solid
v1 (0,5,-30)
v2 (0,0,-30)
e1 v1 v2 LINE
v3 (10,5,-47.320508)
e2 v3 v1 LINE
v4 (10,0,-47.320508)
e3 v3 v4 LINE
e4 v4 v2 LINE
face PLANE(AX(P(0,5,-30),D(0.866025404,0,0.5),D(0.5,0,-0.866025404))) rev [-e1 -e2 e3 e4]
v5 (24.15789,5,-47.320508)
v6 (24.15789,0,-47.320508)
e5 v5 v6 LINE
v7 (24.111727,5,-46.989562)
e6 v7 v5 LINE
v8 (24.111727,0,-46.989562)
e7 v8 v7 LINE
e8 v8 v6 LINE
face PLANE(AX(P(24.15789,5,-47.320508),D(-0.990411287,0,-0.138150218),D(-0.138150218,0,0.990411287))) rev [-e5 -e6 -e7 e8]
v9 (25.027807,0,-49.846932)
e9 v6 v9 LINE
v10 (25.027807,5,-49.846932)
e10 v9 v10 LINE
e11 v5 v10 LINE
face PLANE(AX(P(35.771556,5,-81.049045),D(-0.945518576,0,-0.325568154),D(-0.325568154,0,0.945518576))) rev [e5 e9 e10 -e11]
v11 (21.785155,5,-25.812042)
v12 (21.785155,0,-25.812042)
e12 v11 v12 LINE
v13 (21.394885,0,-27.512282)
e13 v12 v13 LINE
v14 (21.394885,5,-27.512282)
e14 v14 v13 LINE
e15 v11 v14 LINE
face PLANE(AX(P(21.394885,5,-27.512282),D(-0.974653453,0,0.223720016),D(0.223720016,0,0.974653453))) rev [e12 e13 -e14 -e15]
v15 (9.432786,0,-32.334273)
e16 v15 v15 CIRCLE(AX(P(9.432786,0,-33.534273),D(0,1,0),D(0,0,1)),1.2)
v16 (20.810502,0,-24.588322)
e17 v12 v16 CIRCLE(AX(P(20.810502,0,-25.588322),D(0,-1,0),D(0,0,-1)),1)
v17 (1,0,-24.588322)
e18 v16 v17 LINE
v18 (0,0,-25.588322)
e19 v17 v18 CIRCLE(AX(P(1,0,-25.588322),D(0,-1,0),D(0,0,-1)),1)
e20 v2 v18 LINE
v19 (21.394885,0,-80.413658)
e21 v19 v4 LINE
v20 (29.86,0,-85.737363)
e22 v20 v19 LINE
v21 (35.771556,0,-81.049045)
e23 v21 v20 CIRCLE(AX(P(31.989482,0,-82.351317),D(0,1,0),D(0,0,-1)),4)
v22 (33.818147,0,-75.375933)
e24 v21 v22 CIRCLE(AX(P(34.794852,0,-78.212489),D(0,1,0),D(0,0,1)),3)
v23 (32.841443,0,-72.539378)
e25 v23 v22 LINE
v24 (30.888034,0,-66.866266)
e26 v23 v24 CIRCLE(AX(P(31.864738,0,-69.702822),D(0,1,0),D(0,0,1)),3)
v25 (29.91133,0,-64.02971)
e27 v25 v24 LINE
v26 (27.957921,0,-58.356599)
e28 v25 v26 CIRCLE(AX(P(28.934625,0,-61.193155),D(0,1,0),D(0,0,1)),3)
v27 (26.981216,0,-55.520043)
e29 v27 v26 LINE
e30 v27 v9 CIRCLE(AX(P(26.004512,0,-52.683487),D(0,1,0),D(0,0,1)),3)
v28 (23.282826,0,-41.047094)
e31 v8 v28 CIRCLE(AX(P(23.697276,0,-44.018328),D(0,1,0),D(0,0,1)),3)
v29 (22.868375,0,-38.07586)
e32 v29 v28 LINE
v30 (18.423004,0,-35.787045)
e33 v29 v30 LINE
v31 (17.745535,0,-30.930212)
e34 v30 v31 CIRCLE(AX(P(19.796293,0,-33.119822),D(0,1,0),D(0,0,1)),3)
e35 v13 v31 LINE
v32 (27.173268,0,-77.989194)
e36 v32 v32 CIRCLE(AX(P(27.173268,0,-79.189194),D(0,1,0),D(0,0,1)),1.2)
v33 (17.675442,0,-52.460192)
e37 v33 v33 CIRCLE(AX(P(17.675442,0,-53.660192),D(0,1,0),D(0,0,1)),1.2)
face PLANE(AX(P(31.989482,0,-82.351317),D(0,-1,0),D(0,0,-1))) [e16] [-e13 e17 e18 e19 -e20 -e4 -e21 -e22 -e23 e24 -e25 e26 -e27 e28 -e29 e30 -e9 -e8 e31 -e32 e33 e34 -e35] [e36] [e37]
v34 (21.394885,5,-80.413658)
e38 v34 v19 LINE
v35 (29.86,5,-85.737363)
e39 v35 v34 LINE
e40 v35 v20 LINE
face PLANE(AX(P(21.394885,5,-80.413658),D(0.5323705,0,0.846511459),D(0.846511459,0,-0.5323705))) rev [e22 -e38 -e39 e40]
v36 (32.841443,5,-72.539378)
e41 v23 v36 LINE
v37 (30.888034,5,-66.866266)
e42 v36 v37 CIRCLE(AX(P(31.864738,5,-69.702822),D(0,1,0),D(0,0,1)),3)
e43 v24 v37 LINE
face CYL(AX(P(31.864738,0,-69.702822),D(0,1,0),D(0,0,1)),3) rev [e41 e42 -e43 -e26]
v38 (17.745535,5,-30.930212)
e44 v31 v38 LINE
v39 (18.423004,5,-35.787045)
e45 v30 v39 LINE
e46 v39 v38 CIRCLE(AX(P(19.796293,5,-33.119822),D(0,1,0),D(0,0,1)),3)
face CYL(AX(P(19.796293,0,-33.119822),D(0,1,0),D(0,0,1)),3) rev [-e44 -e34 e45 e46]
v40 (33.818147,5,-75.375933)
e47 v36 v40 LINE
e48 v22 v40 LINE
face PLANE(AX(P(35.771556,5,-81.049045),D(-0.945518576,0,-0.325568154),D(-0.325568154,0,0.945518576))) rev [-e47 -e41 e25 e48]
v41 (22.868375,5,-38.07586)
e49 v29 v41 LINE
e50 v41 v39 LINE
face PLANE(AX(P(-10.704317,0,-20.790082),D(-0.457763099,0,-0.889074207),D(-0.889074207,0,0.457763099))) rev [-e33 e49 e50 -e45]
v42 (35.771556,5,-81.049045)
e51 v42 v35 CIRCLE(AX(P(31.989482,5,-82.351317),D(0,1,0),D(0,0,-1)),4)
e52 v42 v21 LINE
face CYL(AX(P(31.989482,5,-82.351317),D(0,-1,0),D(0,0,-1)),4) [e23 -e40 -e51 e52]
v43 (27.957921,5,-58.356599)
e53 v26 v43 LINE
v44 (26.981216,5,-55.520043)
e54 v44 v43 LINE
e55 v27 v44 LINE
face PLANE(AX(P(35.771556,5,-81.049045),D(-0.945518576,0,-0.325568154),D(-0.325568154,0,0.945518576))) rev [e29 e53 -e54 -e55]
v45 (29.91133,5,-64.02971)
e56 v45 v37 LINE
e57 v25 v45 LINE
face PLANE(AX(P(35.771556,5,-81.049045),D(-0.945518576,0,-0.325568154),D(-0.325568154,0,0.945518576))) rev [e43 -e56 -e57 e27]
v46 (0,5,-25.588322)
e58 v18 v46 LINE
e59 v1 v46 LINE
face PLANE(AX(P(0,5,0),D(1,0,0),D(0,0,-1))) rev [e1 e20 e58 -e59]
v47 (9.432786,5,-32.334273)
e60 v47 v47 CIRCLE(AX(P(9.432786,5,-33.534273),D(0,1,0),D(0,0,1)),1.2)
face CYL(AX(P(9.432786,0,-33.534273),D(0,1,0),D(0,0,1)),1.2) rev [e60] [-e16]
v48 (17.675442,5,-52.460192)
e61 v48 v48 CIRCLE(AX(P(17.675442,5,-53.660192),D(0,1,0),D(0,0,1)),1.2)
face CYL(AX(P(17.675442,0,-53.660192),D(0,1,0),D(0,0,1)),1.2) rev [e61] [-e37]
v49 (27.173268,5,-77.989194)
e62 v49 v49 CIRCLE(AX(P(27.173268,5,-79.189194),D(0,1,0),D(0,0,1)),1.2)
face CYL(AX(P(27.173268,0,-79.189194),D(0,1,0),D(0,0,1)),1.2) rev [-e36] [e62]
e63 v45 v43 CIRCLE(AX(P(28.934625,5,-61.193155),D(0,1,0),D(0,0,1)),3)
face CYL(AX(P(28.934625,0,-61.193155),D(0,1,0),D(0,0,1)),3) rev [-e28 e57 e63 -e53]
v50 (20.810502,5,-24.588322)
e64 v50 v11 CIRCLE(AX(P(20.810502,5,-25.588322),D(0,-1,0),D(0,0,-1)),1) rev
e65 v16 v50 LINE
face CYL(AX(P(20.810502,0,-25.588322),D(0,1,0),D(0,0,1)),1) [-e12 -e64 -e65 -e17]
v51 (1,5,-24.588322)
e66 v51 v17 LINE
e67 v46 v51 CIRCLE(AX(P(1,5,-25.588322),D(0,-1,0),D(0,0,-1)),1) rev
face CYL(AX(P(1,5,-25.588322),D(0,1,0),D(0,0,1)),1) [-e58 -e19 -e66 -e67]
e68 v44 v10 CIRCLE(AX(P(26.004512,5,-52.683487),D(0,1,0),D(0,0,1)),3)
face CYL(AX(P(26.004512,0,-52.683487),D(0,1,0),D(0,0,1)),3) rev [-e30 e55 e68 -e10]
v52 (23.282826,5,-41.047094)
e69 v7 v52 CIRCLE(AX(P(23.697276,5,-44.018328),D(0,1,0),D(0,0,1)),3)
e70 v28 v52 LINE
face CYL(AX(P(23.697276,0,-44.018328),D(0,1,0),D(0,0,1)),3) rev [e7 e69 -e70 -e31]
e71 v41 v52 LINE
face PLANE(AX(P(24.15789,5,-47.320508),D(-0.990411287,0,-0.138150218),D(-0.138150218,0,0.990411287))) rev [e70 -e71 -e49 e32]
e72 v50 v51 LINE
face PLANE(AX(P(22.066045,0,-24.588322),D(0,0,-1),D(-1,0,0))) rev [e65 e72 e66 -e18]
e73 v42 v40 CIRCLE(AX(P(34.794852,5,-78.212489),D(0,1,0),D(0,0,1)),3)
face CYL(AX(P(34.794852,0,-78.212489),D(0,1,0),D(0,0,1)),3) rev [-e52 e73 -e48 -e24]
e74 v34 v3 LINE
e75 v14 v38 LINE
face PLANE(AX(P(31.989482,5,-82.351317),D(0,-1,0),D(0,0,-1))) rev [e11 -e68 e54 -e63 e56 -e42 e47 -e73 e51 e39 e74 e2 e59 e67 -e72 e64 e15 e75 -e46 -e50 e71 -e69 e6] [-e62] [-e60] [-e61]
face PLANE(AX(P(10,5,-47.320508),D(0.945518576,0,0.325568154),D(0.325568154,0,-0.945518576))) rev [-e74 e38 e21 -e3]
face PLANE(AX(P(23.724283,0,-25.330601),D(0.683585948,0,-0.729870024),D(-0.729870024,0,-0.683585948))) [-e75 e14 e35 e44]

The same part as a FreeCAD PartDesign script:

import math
import FreeCAD as App
import Part
import Sketcher
Q = App.Units.Quantity


def edges_at(feature, points):
    """Names of the edges that pass closest to the given points."""
    edges = feature.Shape.Edges
    near = lambda p: min(range(len(edges)), key=lambda i: edges[i].distToShape(Part.Vertex(*p))[0])
    return sorted({f"Edge{near(p) + 1}" for p in points})

doc = App.newDocument("Part")
body = doc.addObject("PartDesign::Body", "Body")

sketch1 = body.newObject("Sketcher::SketchObject", "Sketch")
sketch1.AttachmentSupport = (doc.getObject("XZ_Plane"), [""])
sketch1.MapMode = "FlatFace"
sketch1.addGeometry([
    Part.LineSegment(App.Vector(0, -30, 0), App.Vector(0, 0, 0)),
    Part.LineSegment(App.Vector(0, 0, 0), App.Vector(27.71, 0, 0)),
    Part.LineSegment(App.Vector(27.71, 0, 0), App.Vector(21.394885, -27.512282, 0)),
    Part.LineSegment(App.Vector(21.394885, -27.512282, 0), App.Vector(24.15789, -47.320508, 0)),
    Part.LineSegment(App.Vector(24.15789, -47.320508, 0), App.Vector(35.771556, -81.049045, 0)),
    Part.ArcOfCircle(Part.Circle(App.Vector(31.989482, -82.351317, 0), App.Vector(0, 0, 1), 4), math.radians(-122.16576), math.radians(19)),
    Part.LineSegment(App.Vector(29.86, -85.737363, 0), App.Vector(21.394885, -80.413658, 0)),
    Part.LineSegment(App.Vector(21.394885, -80.413658, 0), App.Vector(10, -47.320508, 0)),
    Part.LineSegment(App.Vector(10, -47.320508, 0), App.Vector(0, -30, 0)),
], False)
sketch1.addConstraint([
    Sketcher.Constraint("Coincident", 0, 2, 1, 1),
    Sketcher.Constraint("Coincident", 1, 2, 2, 1),
    Sketcher.Constraint("Coincident", 2, 2, 3, 1),
    Sketcher.Constraint("Coincident", 3, 2, 4, 1),
    Sketcher.Constraint("Tangent", 4, 2, 5, 2),
    Sketcher.Constraint("Tangent", 5, 1, 6, 1),
    Sketcher.Constraint("Coincident", 6, 2, 7, 1),
    Sketcher.Constraint("Coincident", 7, 2, 8, 1),
    Sketcher.Constraint("Coincident", 8, 2, 0, 1),
    Sketcher.Constraint("Vertical", 0),
    Sketcher.Constraint("Horizontal", 1),
    Sketcher.Constraint("Coincident", 0, 2, -1, 1),
    Sketcher.Constraint("Parallel", 4, 7),
    Sketcher.Constraint("Horizontal", 3, 2, 7, 2),
    Sketcher.Constraint("Vertical", 2, 2, 6, 2),
    Sketcher.Constraint("Equal", 3, 8),
    Sketcher.Constraint("Radius", 5, Q("4 mm")),
    Sketcher.Constraint("DistanceY", 0, 1, 0, 2, Q("30 mm")),
    Sketcher.Constraint("Angle", 4, Q("-71 deg")),
    Sketcher.Constraint("Angle", 8, Q("120 deg")),
    Sketcher.Constraint("Distance", 3, Q("20 mm")),
    Sketcher.Constraint("Distance", 6, Q("10 mm")),
    Sketcher.Constraint("Distance", 7, Q("35 mm")),
    Sketcher.Constraint("DistanceX", 1, 1, 1, 2, Q("27.71 mm")),
    Sketcher.Constraint("DistanceX", -1, 1, 5, 1, Q("29.86 mm")),
])
pad1 = body.newObject("PartDesign::Pad", "Pad")
pad1.Profile = sketch1
pad1.Length = 5
pad1.Reversed = True

sketch2 = body.newObject("Sketcher::SketchObject", "Sketch001")
sketch2.AttachmentSupport = (doc.getObject("XZ_Plane"), [""])
sketch2.MapMode = "FlatFace"
sketch2.AttachmentOffset = App.Placement(App.Vector(0, 0, -5), App.Rotation())
sketch2.addGeometry([
    Part.ArcOfCircle(Part.Circle(App.Vector(34.794852, -78.212489, 0), App.Vector(0, 0, 1), 3), math.radians(109), math.radians(289)),
    Part.LineSegment(App.Vector(33.818147, -75.375933, 0), App.Vector(35.771556, -81.049045, 0)),
    Part.ArcOfCircle(Part.Circle(App.Vector(31.864738, -69.702822, 0), App.Vector(0, 0, 1), 3), math.radians(109), math.radians(289)),
    Part.LineSegment(App.Vector(30.888034, -66.866266, 0), App.Vector(32.841443, -72.539378, 0)),
    Part.ArcOfCircle(Part.Circle(App.Vector(28.934625, -61.193155, 0), App.Vector(0, 0, 1), 3), math.radians(109), math.radians(289)),
    Part.LineSegment(App.Vector(27.957921, -58.356599, 0), App.Vector(29.91133, -64.02971, 0)),
    Part.ArcOfCircle(Part.Circle(App.Vector(26.004512, -52.683487, 0), App.Vector(0, 0, 1), 3), math.radians(109), math.radians(289)),
    Part.LineSegment(App.Vector(25.027807, -49.846932, 0), App.Vector(26.981216, -55.520043, 0)),
    Part.ArcOfCircle(Part.Circle(App.Vector(23.697276, -44.018328, 0), App.Vector(0, 0, 1), 3), math.radians(97.940821), math.radians(277.940821)),
    Part.LineSegment(App.Vector(23.282826, -41.047094, 0), App.Vector(24.111727, -46.989562, 0)),
    Part.LineSegment(App.Vector(17.745535, -30.930212, 0), App.Vector(21.394885, -27.512282, 0)),
    Part.LineSegment(App.Vector(21.394885, -27.512282, 0), App.Vector(22.868375, -38.07586, 0)),
    Part.LineSegment(App.Vector(22.868375, -38.07586, 0), App.Vector(18.423004, -35.787045, 0)),
    Part.ArcOfCircle(Part.Circle(App.Vector(19.796293, -33.119822, 0), App.Vector(0, 0, 1), 3), math.radians(133.124501), math.radians(242.757142)),
    Part.LineSegment(App.Vector(19.827306, -16.086578, 0), App.Vector(24.453138, -14.18877, 0)),
    Part.LineSegment(App.Vector(24.453138, -14.18877, 0), App.Vector(22.066045, -24.588322, 0)),
    Part.LineSegment(App.Vector(22.066045, -24.588322, 0), App.Vector(18.730897, -20.863166, 0)),
    Part.ArcOfCircle(Part.Circle(App.Vector(20.965991, -18.862077, 0), App.Vector(0, 0, 1), 3), math.radians(112.306532), math.radians(221.838224)),
    Part.LineSegment(App.Vector(22.885558, -2.763065, 0), App.Vector(27.511391, -0.865257, 0)),
    Part.LineSegment(App.Vector(27.511391, -0.865257, 0), App.Vector(25.124298, -11.264809, 0)),
    Part.LineSegment(App.Vector(25.124298, -11.264809, 0), App.Vector(21.78915, -7.539653, 0)),
    Part.ArcOfCircle(Part.Circle(App.Vector(24.024243, -5.538564, 0), App.Vector(0, 0, 1), 3), math.radians(112.306532), math.radians(221.838224)),
], False)
sketch2.addConstraint([
    Sketcher.Constraint("Coincident", 0, 1, 1, 1),
    Sketcher.Constraint("Coincident", 1, 2, 0, 2),
    Sketcher.Constraint("Coincident", 2, 1, 3, 1),
    Sketcher.Constraint("Coincident", 3, 2, 2, 2),
    Sketcher.Constraint("Coincident", 4, 1, 5, 1),
    Sketcher.Constraint("Coincident", 5, 2, 4, 2),
    Sketcher.Constraint("Coincident", 6, 1, 7, 1),
    Sketcher.Constraint("Coincident", 7, 2, 6, 2),
    Sketcher.Constraint("Coincident", 8, 1, 9, 1),
    Sketcher.Constraint("Coincident", 9, 2, 8, 2),
    Sketcher.Constraint("Coincident", 10, 2, 11, 1),
    Sketcher.Constraint("Coincident", 11, 2, 12, 1),
    Sketcher.Constraint("Tangent", 12, 2, 13, 2),
    Sketcher.Constraint("Tangent", 13, 1, 10, 1),
    Sketcher.Constraint("Coincident", 14, 2, 15, 1),
    Sketcher.Constraint("Coincident", 15, 2, 16, 1),
    Sketcher.Constraint("Tangent", 16, 2, 17, 2),
    Sketcher.Constraint("Tangent", 17, 1, 14, 1),
    Sketcher.Constraint("Coincident", 18, 2, 19, 1),
    Sketcher.Constraint("Coincident", 19, 2, 20, 1),
    Sketcher.Constraint("Tangent", 20, 2, 21, 2),
    Sketcher.Constraint("Tangent", 21, 1, 18, 1),
    Sketcher.Constraint("Equal", 0, 2),
    Sketcher.Constraint("Equal", 2, 4),
    Sketcher.Constraint("Equal", 4, 6),
    Sketcher.Constraint("Equal", 6, 8),
    Sketcher.Constraint("Equal", 8, 13),
    Sketcher.Constraint("Equal", 13, 17),
    Sketcher.Constraint("Equal", 17, 21),
    Sketcher.Constraint("Parallel", 1, 3),
    Sketcher.Constraint("Parallel", 3, 5),
    Sketcher.Constraint("Parallel", 5, 7),
    Sketcher.Constraint("Parallel", 9, 11),
    Sketcher.Constraint("Parallel", 14, 18),
    Sketcher.Constraint("Parallel", 15, 19),
    Sketcher.Constraint("Parallel", 16, 20),
    Sketcher.Constraint("Equal", 10, 12),
    Sketcher.Constraint("Equal", 12, 14),
    Sketcher.Constraint("Equal", 14, 16),
    Sketcher.Constraint("Equal", 16, 18),
    Sketcher.Constraint("Radius", 0, Q("3 mm")),
    Sketcher.Constraint("Angle", 1, Q("-71 deg")),
    Sketcher.Constraint("Distance", 10, Q("5 mm")),
    Sketcher.Constraint("Distance", 15, Q("10.67 mm")),
    Sketcher.Constraint("DistanceY", 0, 3, 6, 3, Q("25.529002 mm")),
    Sketcher.Constraint("DistanceY", 2, 3, 13, 3, Q("36.583 mm")),
    Sketcher.Constraint("DistanceY", 4, 1, -1, 1, Q("58.356599 mm")),
    Sketcher.Constraint("DistanceX", -1, 1, 19, 2, Q("25.124298 mm")),
    Sketcher.Constraint("DistanceX", 8, 1, 9, 2, Q("0.828901 mm")),
    Sketcher.Constraint("DistanceX", 11, 2, 8, 3, Q("0.828901 mm")),
    Sketcher.Constraint("DistanceY", 9, 2, 11, 2, Q("8.913702 mm")),
    Sketcher.Constraint("DistanceY", 13, 3, 15, 2, Q("8.5315 mm")),
    Sketcher.Constraint("DistanceY", 17, 3, 17, 1, Q("2.775499 mm")),
    Sketcher.Constraint("DistanceX", 17, 3, 18, 2, Q("6.5454 mm")),
    Sketcher.Constraint("Distance", 11, Q("10.66585 mm")),
    Sketcher.Constraint("DistanceX", -1, 1, 0, 3, Q("34.794852 mm")),
    Sketcher.Constraint("DistanceY", 0, 3, -1, 1, Q("78.212489 mm")),
    Sketcher.Constraint("DistanceX", -1, 1, 2, 3, Q("31.864738 mm")),
    Sketcher.Constraint("DistanceY", 2, 3, -1, 1, Q("69.702822 mm")),
    Sketcher.Constraint("DistanceX", -1, 1, 6, 3, Q("26.004512 mm")),
    Sketcher.Constraint("DistanceX", -1, 1, 4, 1, Q("27.957921 mm")),
    Sketcher.Constraint("DistanceY", 6, 1, -1, 1, Q("49.846932 mm")),
    Sketcher.Constraint("DistanceY", 19, 2, -1, 1, Q("11.264809 mm")),
    Sketcher.Constraint("DistanceY", 6, 3, 8, 3, Q("8.66516 mm")),
    Sketcher.Constraint("DistanceX", 8, 3, 4, 3, Q("5.237349 mm")),
    Sketcher.Constraint("DistanceX", 13, 3, 6, 3, Q("6.208219 mm")),
    Sketcher.Constraint("DistanceX", 2, 3, 0, 1, Q("1.953409 mm")),
    Sketcher.Constraint("DistanceX", 4, 3, 2, 1, Q("1.953409 mm")),
])
pocket1 = body.newObject("PartDesign::Pocket", "Pocket")
pocket1.Profile = sketch2
pocket1.Type = "ThroughAll"
pocket1.Reversed = True
doc.recompute()

fillet = body.newObject("PartDesign::Fillet", "Fillet")
fillet.Base = (pocket1, edges_at(pocket1, [(27.71, 2.5, 0), (27.511, 2.5, -0.865)]))
fillet.Radius = 0.5

sketch3 = body.newObject("Sketcher::SketchObject", "Sketch002")
sketch3.AttachmentSupport = (doc.getObject("XZ_Plane"), [""])
sketch3.MapMode = "FlatFace"
sketch3.AttachmentOffset = App.Placement(App.Vector(0, 0, -5), App.Rotation())
sketch3.addGeometry([
    Part.Circle(App.Vector(11.728362, -9.402231, 0), App.Vector(0, 0, 1), 1.2),
    Part.Circle(App.Vector(9.432786, -33.534273, 0), App.Vector(0, 0, 1), 1.2),
    Part.Circle(App.Vector(17.675442, -53.660192, 0), App.Vector(0, 0, 1), 1.2),
    Part.Circle(App.Vector(27.173268, -79.189194, 0), App.Vector(0, 0, 1), 1.2),
], False)
sketch3.addConstraint([
    Sketcher.Constraint("Equal", 0, 1),
    Sketcher.Constraint("Equal", 1, 2),
    Sketcher.Constraint("Equal", 2, 3),
    Sketcher.Constraint("Diameter", 0, Q("2.4 mm")),
    Sketcher.Constraint("DistanceY", 3, 3, 2, 3, Q("25.529002 mm")),
    Sketcher.Constraint("DistanceX", -1, 1, 0, 3, Q("11.728362 mm")),
    Sketcher.Constraint("DistanceY", 0, 3, -1, 1, Q("9.402231 mm")),
    Sketcher.Constraint("DistanceY", 2, 3, -1, 1, Q("53.660192 mm")),
    Sketcher.Constraint("DistanceX", -1, 1, 3, 3, Q("27.173268 mm")),
    Sketcher.Constraint("DistanceY", 1, 3, 0, 3, Q("24.132041 mm")),
    Sketcher.Constraint("DistanceX", 0, 3, 2, 3, Q("5.94708 mm")),
    Sketcher.Constraint("DistanceX", -1, 1, 1, 3, Q("9.432786 mm")),
])
pocket2 = body.newObject("PartDesign::Pocket", "Pocket001")
pocket2.Profile = sketch3
pocket2.Type = "ThroughAll"
pocket2.Reversed = True

sketch4 = body.newObject("Sketcher::SketchObject", "Sketch003")
sketch4.AttachmentSupport = (doc.getObject("XZ_Plane"), [""])
sketch4.MapMode = "FlatFace"
sketch4.AttachmentOffset = App.Placement(App.Vector(0, 0, -5), App.Rotation())
sketch4.addGeometry([
    Part.LineSegment(App.Vector(0, -24.588322, 0), App.Vector(0, 0, 0)),
    Part.LineSegment(App.Vector(0, 0, 0), App.Vector(28.614713, 0, 0)),
    Part.LineSegment(App.Vector(28.614713, 0, 0), App.Vector(28.614713, -24.588322, 0)),
    Part.LineSegment(App.Vector(28.614713, -24.588322, 0), App.Vector(0, -24.588322, 0)),
], False)
sketch4.addConstraint([
    Sketcher.Constraint("Coincident", 0, 2, 1, 1),
    Sketcher.Constraint("Coincident", 1, 2, 2, 1),
    Sketcher.Constraint("Coincident", 2, 2, 3, 1),
    Sketcher.Constraint("Coincident", 3, 2, 0, 1),
    Sketcher.Constraint("Vertical", 0),
    Sketcher.Constraint("Horizontal", 1),
    Sketcher.Constraint("Vertical", 2),
    Sketcher.Constraint("Horizontal", 3),
    Sketcher.Constraint("Coincident", 0, 2, -1, 1),
    Sketcher.Constraint("DistanceY", 0, 1, 0, 2, Q("24.588322 mm")),
    Sketcher.Constraint("DistanceX", 1, 1, 1, 2, Q("28.614713 mm")),
])
pocket3 = body.newObject("PartDesign::Pocket", "Pocket002")
pocket3.Profile = sketch4
pocket3.Type = "ThroughAll"
pocket3.Reversed = True
doc.recompute()

fillet2 = body.newObject("PartDesign::Fillet", "Fillet001")
fillet2.Base = (pocket3, edges_at(pocket3, [(0, 2.5, -24.588), (22.066, 2.5, -24.588)]))
fillet2.Radius = 1

doc.recompute()
